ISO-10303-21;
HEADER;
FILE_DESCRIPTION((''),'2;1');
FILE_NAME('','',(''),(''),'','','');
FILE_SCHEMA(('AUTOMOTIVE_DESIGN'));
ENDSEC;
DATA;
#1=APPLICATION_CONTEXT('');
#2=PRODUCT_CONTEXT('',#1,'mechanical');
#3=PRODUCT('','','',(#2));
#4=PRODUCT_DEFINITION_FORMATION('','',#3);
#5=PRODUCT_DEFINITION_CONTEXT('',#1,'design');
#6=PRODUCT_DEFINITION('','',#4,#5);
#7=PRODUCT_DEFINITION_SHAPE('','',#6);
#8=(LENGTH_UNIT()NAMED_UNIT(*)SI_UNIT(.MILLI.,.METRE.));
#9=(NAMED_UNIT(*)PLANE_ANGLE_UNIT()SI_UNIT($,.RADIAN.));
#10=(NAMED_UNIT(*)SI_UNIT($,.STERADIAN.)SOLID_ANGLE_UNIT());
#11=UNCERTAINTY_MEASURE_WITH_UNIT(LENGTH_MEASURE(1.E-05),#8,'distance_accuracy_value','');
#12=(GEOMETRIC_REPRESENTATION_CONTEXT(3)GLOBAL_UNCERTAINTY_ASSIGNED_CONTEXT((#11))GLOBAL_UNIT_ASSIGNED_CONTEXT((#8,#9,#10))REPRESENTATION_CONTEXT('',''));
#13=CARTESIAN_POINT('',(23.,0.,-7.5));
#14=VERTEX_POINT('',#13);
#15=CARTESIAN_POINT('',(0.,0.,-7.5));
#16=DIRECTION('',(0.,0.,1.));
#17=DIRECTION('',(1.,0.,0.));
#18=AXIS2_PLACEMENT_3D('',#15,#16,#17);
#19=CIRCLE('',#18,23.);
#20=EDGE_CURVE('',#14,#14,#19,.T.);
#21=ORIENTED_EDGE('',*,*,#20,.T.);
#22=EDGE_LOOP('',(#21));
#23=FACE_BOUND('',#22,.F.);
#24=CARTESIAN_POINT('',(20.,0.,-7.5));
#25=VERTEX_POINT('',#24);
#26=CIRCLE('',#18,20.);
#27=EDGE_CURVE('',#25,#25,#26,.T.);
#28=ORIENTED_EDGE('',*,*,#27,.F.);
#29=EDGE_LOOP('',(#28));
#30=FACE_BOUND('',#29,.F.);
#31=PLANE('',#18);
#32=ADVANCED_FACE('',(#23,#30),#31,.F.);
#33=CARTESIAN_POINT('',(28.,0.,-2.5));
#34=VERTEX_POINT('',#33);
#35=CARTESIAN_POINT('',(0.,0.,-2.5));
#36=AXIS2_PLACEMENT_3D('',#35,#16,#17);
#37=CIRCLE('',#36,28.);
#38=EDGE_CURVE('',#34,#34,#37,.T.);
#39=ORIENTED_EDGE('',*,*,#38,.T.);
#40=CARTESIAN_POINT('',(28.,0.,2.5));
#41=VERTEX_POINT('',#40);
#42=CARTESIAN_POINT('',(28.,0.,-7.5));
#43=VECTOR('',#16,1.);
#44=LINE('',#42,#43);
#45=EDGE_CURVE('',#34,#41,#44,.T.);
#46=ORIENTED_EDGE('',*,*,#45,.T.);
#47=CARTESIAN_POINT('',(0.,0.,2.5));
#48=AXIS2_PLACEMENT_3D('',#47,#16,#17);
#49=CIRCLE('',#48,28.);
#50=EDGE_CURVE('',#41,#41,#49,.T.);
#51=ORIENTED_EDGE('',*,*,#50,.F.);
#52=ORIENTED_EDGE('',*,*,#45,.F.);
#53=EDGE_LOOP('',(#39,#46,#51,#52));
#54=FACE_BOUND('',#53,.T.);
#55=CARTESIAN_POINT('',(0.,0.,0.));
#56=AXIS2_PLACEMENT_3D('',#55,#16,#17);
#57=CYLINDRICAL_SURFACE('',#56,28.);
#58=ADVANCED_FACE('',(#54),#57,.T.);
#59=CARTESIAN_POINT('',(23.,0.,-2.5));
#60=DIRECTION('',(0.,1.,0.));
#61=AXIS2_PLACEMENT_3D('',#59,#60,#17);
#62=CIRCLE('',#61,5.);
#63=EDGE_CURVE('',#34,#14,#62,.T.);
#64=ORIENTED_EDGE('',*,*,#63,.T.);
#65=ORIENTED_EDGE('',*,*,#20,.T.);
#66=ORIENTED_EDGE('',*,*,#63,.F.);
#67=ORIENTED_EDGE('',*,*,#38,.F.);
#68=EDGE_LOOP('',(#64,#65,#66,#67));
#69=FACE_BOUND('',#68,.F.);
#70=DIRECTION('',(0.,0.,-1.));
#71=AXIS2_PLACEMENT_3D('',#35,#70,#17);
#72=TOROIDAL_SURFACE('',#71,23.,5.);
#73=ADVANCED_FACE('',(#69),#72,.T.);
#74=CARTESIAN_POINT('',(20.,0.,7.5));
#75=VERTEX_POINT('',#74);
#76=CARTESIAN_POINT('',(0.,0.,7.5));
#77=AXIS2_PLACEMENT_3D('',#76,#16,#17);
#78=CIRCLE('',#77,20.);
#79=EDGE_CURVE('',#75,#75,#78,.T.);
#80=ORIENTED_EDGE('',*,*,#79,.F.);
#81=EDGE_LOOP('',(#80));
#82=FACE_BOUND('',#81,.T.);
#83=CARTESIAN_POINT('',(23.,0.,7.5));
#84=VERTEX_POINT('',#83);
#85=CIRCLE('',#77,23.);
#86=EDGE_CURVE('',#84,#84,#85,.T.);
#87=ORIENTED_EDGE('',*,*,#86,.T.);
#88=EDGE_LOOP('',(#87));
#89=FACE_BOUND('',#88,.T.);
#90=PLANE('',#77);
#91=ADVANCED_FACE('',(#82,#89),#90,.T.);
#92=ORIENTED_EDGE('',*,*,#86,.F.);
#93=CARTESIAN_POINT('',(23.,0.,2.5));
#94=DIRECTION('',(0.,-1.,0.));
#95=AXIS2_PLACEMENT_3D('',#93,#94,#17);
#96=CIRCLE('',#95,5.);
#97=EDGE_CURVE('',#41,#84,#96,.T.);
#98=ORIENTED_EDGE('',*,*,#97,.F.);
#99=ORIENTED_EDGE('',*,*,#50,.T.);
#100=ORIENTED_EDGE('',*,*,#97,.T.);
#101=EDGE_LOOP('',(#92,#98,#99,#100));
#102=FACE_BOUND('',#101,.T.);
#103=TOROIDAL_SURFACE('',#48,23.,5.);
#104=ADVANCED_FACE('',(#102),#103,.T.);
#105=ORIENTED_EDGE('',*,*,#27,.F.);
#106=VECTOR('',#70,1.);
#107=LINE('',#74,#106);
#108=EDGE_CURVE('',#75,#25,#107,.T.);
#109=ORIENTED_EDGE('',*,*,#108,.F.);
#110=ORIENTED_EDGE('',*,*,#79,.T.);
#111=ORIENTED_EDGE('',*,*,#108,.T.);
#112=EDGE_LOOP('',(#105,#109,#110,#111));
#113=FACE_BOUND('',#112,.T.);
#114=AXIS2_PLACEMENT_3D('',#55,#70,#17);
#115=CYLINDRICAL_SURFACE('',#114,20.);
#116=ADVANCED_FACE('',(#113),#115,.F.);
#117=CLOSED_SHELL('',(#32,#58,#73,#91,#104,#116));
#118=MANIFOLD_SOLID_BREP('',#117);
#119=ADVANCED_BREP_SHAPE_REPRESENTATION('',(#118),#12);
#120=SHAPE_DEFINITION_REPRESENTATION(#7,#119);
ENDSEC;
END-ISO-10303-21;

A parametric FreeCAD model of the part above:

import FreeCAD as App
import Part
import Sketcher
from FreeCAD import Vector


def edges_at(feature, points):
    """Names of the edges that pass closest to the given points."""
    edges = feature.Shape.Edges
    near = lambda p: min(range(len(edges)), key=lambda i: edges[i].distToShape(Part.Vertex(*p))[0])
    return sorted({f"Edge{near(p) + 1}" for p in points})

doc = App.newDocument("Part")
body = doc.addObject("PartDesign::Body", "Body")

# Sketch on XY plane
sketch1 = body.newObject("Sketcher::SketchObject", "Sketch")
sketch1.AttachmentSupport = (doc.getObject("XY_Plane"), [""])
sketch1.MapMode = "FlatFace"
sketch1.addGeometry(Part.Circle(Vector(0, 0, 0), Vector(0, 0, 1), 28), False)
sketch1.addGeometry(Part.Circle(Vector(0, 0, 0), Vector(0, 0, 1), 20), False)
sketch1.addConstraint(Sketcher.Constraint("Coincident", 0, 3, -1, 1))
sketch1.addConstraint(Sketcher.Constraint("Coincident", 1, 3, -1, 1))
sketch1.addConstraint(Sketcher.Constraint("Diameter", 0, 56.0))
sketch1.addConstraint(Sketcher.Constraint("Diameter", 1, 40.0))
pad1 = body.newObject("PartDesign::Pad", "Pad")
pad1.Profile = sketch1
pad1.Length = 15
pad1.Midplane = True
doc.recompute()

fillet = body.newObject("PartDesign::Fillet", "Fillet")
fillet.Base = (pad1, edges_at(pad1, [(-28, 0, 7.5), (-28, 0, -7.5)]))
fillet.Radius = 5

doc.recompute()
